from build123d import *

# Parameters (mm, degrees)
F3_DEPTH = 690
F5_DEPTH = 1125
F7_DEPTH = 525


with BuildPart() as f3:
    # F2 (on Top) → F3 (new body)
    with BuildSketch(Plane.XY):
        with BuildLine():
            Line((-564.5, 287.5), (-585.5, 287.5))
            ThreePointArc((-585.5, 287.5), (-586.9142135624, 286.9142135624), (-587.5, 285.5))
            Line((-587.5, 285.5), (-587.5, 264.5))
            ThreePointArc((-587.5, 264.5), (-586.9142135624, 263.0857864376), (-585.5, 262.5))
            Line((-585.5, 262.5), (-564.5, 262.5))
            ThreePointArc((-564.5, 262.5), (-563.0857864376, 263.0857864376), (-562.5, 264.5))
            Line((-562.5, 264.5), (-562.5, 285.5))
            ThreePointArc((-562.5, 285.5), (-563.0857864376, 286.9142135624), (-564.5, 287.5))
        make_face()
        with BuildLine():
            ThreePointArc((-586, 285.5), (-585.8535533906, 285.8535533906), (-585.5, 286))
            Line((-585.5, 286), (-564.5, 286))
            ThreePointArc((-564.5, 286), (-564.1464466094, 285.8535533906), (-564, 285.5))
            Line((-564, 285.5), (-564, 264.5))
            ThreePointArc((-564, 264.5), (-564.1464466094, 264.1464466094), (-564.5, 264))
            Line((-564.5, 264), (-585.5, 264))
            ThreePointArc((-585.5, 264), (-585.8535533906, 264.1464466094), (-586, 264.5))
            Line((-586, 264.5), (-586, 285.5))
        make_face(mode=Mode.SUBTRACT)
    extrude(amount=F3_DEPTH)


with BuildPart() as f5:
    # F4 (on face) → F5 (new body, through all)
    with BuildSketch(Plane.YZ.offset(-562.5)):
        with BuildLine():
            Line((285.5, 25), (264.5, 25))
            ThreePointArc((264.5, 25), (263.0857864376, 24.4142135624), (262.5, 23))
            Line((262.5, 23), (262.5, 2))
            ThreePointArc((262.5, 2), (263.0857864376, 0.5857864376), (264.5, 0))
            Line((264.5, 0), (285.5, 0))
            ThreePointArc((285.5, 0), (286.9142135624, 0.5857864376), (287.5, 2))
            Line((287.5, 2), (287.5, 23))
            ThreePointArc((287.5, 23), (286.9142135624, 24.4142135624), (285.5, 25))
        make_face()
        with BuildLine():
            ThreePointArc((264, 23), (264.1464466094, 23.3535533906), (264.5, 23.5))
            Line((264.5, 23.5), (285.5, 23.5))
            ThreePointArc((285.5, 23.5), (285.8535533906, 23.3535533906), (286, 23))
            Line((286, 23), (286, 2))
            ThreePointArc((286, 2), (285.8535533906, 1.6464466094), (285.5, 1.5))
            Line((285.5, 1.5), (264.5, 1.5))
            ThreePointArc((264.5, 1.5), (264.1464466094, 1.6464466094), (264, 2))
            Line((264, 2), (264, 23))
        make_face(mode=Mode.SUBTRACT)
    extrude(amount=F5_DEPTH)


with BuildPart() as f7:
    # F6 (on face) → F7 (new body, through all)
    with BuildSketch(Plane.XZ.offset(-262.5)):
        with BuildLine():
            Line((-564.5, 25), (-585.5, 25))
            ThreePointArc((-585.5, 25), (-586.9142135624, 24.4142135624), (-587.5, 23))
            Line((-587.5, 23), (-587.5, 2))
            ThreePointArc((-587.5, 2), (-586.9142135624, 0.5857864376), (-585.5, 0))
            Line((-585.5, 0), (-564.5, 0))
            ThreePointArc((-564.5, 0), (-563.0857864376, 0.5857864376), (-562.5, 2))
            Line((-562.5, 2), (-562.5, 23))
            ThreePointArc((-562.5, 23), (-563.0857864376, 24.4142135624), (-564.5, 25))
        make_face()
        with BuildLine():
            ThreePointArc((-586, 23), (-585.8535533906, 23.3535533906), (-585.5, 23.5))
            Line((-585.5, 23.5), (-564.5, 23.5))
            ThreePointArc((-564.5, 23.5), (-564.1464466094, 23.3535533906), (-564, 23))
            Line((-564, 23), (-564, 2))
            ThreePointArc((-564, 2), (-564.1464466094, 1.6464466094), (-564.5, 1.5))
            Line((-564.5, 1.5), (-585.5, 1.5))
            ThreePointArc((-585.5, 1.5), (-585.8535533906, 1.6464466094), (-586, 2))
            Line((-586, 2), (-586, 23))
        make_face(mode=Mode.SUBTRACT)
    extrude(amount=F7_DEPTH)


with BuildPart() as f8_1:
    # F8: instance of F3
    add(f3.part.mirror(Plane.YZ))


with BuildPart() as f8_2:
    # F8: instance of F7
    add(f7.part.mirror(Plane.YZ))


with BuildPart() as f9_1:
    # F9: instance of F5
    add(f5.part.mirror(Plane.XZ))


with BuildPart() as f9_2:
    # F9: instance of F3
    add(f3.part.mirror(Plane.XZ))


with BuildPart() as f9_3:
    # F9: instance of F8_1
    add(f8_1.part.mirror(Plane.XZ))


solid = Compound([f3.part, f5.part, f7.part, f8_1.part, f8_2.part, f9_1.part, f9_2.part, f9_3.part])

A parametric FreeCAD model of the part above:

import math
import FreeCAD as App
import Part
import Sketcher
from FreeCAD import Vector

doc = App.newDocument("Part")
body = doc.addObject("PartDesign::Body", "Body")

sketch1 = body.newObject("Sketcher::SketchObject", "Sketch")
sketch1.AttachmentSupport = (doc.getObject("XY_Plane"), [""])
sketch1.MapMode = "FlatFace"
sketch1.addGeometry(Part.LineSegment(Vector(-564.5, 287.5, 0), Vector(-585.5, 287.5, 0)), False)
sketch1.addGeometry(Part.ArcOfCircle(Part.Circle(Vector(-585.5, 285.5, 0), Vector(0, 0, 1), 2), math.radians(90), math.radians(180)), False)
sketch1.addGeometry(Part.LineSegment(Vector(-587.5, 285.5, 0), Vector(-587.5, 264.5, 0)), False)
sketch1.addGeometry(Part.ArcOfCircle(Part.Circle(Vector(-585.5, 264.5, 0), Vector(0, 0, 1), 2), math.radians(180), math.radians(270)), False)
sketch1.addGeometry(Part.LineSegment(Vector(-585.5, 262.5, 0), Vector(-564.5, 262.5, 0)), False)
sketch1.addGeometry(Part.ArcOfCircle(Part.Circle(Vector(-564.5, 264.5, 0), Vector(0, 0, 1), 2), math.radians(-90), math.radians(0)), False)
sketch1.addGeometry(Part.LineSegment(Vector(-562.5, 264.5, 0), Vector(-562.5, 285.5, 0)), False)
sketch1.addGeometry(Part.ArcOfCircle(Part.Circle(Vector(-564.5, 285.5, 0), Vector(0, 0, 1), 2), math.radians(0), math.radians(90)), False)
sketch1.addGeometry(Part.LineSegment(Vector(-586, 264.5, 0), Vector(-586, 285.5, 0)), False)
sketch1.addGeometry(Part.ArcOfCircle(Part.Circle(Vector(-585.5, 285.5, 0), Vector(0, 0, 1), 0.5), math.radians(90), math.radians(180)), False)
sketch1.addGeometry(Part.LineSegment(Vector(-585.5, 286, 0), Vector(-564.5, 286, 0)), False)
sketch1.addGeometry(Part.ArcOfCircle(Part.Circle(Vector(-564.5, 285.5, 0), Vector(0, 0, 1), 0.5), math.radians(0), math.radians(90)), False)
sketch1.addGeometry(Part.LineSegment(Vector(-564, 285.5, 0), Vector(-564, 264.5, 0)), False)
sketch1.addGeometry(Part.ArcOfCircle(Part.Circle(Vector(-564.5, 264.5, 0), Vector(0, 0, 1), 0.5), math.radians(-90), math.radians(0)), False)
sketch1.addGeometry(Part.LineSegment(Vector(-564.5, 264, 0), Vector(-585.5, 264, 0)), False)
sketch1.addGeometry(Part.ArcOfCircle(Part.Circle(Vector(-585.5, 264.5, 0), Vector(0, 0, 1), 0.5), math.radians(180), math.radians(270)), False)
sketch1.addConstraint(Sketcher.Constraint("Tangent", 0, 2, 1, 1))
sketch1.addConstraint(Sketcher.Constraint("Tangent", 1, 2, 2, 1))
sketch1.addConstraint(Sketcher.Constraint("Tangent", 2, 2, 3, 1))
sketch1.addConstraint(Sketcher.Constraint("Tangent", 3, 2, 4, 1))
sketch1.addConstraint(Sketcher.Constraint("Tangent", 4, 2, 5, 1))
sketch1.addConstraint(Sketcher.Constraint("Tangent", 5, 2, 6, 1))
sketch1.addConstraint(Sketcher.Constraint("Tangent", 6, 2, 7, 1))
sketch1.addConstraint(Sketcher.Constraint("Tangent", 7, 2, 0, 1))
sketch1.addConstraint(Sketcher.Constraint("Tangent", 8, 2, 9, 2))
sketch1.addConstraint(Sketcher.Constraint("Tangent", 9, 1, 10, 1))
sketch1.addConstraint(Sketcher.Constraint("Tangent", 10, 2, 11, 2))
sketch1.addConstraint(Sketcher.Constraint("Tangent", 11, 1, 12, 1))
sketch1.addConstraint(Sketcher.Constraint("Tangent", 12, 2, 13, 2))
sketch1.addConstraint(Sketcher.Constraint("Tangent", 13, 1, 14, 1))
sketch1.addConstraint(Sketcher.Constraint("Tangent", 14, 2, 15, 2))
sketch1.addConstraint(Sketcher.Constraint("Tangent", 15, 1, 8, 1))
sketch1.addConstraint(Sketcher.Constraint("Horizontal", 0))
sketch1.addConstraint(Sketcher.Constraint("Vertical", 2))
sketch1.addConstraint(Sketcher.Constraint("Horizontal", 4))
sketch1.addConstraint(Sketcher.Constraint("Vertical", 6))
sketch1.addConstraint(Sketcher.Constraint("Vertical", 8))
sketch1.addConstraint(Sketcher.Constraint("Horizontal", 10))
sketch1.addConstraint(Sketcher.Constraint("Vertical", 12))
sketch1.addConstraint(Sketcher.Constraint("Horizontal", 14))
sketch1.addConstraint(Sketcher.Constraint("Coincident", 9, 3, 1, 3))
sketch1.addConstraint(Sketcher.Constraint("Coincident", 11, 3, 7, 3))
sketch1.addConstraint(Sketcher.Constraint("Coincident", 13, 3, 5, 3))
sketch1.addConstraint(Sketcher.Constraint("Equal", 1, 3))
sketch1.addConstraint(Sketcher.Constraint("Equal", 3, 5))
sketch1.addConstraint(Sketcher.Constraint("Equal", 5, 7))
sketch1.addConstraint(Sketcher.Constraint("Equal", 13, 15))
sketch1.addConstraint(Sketcher.Constraint("Equal", 14, 2))
sketch1.addConstraint(Sketcher.Constraint("Radius", 1, 2.0))
sketch1.addConstraint(Sketcher.Constraint("Radius", 9, 0.5))
sketch1.addConstraint(Sketcher.Constraint("DistanceX", 0, 2, 0, 1, 21.0))
sketch1.addConstraint(Sketcher.Constraint("DistanceX", 8, 2, -1, 1, 586.0))
sketch1.addConstraint(Sketcher.Constraint("DistanceY", -1, 1, 9, 1, 286.0))
pad1 = body.newObject("PartDesign::Pad", "Pad")
pad1.Profile = sketch1
pad1.Length = 690
body2 = doc.addObject("PartDesign::Body", "Body001")

sketch2 = body2.newObject("Sketcher::SketchObject", "Sketch001")
sketch2.AttachmentSupport = (doc.getObject("YZ_Plane001"), [""])
sketch2.MapMode = "FlatFace"
sketch2.AttachmentOffset = App.Placement(Vector(0, 0, -562.5), App.Rotation())
sketch2.addGeometry(Part.LineSegment(Vector(285.5, 25, 0), Vector(264.5, 25, 0)), False)
sketch2.addGeometry(Part.ArcOfCircle(Part.Circle(Vector(264.5, 23, 0), Vector(0, 0, 1), 2), math.radians(90), math.radians(180)), False)
sketch2.addGeometry(Part.LineSegment(Vector(262.5, 23, 0), Vector(262.5, 2, 0)), False)
sketch2.addGeometry(Part.ArcOfCircle(Part.Circle(Vector(264.5, 2, 0), Vector(0, 0, 1), 2), math.radians(180), math.radians(270)), False)
sketch2.addGeometry(Part.LineSegment(Vector(264.5, 0, 0), Vector(285.5, 0, 0)), False)
sketch2.addGeometry(Part.ArcOfCircle(Part.Circle(Vector(285.5, 2, 0), Vector(0, 0, 1), 2), math.radians(-90), math.radians(0)), False)
sketch2.addGeometry(Part.LineSegment(Vector(287.5, 2, 0), Vector(287.5, 23, 0)), False)
sketch2.addGeometry(Part.ArcOfCircle(Part.Circle(Vector(285.5, 23, 0), Vector(0, 0, 1), 2), math.radians(0), math.radians(90)), False)
sketch2.addGeometry(Part.LineSegment(Vector(264, 2, 0), Vector(264, 23, 0)), False)
sketch2.addGeometry(Part.ArcOfCircle(Part.Circle(Vector(264.5, 23, 0), Vector(0, 0, 1), 0.5), math.radians(90), math.radians(180)), False)
sketch2.addGeometry(Part.LineSegment(Vector(264.5, 23.5, 0), Vector(285.5, 23.5, 0)), False)
sketch2.addGeometry(Part.ArcOfCircle(Part.Circle(Vector(285.5, 23, 0), Vector(0, 0, 1), 0.5), math.radians(0), math.radians(90)), False)
sketch2.addGeometry(Part.LineSegment(Vector(286, 23, 0), Vector(286, 2, 0)), False)
sketch2.addGeometry(Part.ArcOfCircle(Part.Circle(Vector(285.5, 2, 0), Vector(0, 0, 1), 0.5), math.radians(-90), math.radians(0)), False)
sketch2.addGeometry(Part.LineSegment(Vector(285.5, 1.5, 0), Vector(264.5, 1.5, 0)), False)
sketch2.addGeometry(Part.ArcOfCircle(Part.Circle(Vector(264.5, 2, 0), Vector(0, 0, 1), 0.5), math.radians(180), math.radians(270)), False)
sketch2.addConstraint(Sketcher.Constraint("Tangent", 0, 2, 1, 1))
sketch2.addConstraint(Sketcher.Constraint("Tangent", 1, 2, 2, 1))
sketch2.addConstraint(Sketcher.Constraint("Tangent", 2, 2, 3, 1))
sketch2.addConstraint(Sketcher.Constraint("Tangent", 3, 2, 4, 1))
sketch2.addConstraint(Sketcher.Constraint("Tangent", 4, 2, 5, 1))
sketch2.addConstraint(Sketcher.Constraint("Tangent", 5, 2, 6, 1))
sketch2.addConstraint(Sketcher.Constraint("Tangent", 6, 2, 7, 1))
sketch2.addConstraint(Sketcher.Constraint("Tangent", 7, 2, 0, 1))
sketch2.addConstraint(Sketcher.Constraint("Tangent", 8, 2, 9, 2))
sketch2.addConstraint(Sketcher.Constraint("Tangent", 9, 1, 10, 1))
sketch2.addConstraint(Sketcher.Constraint("Tangent", 10, 2, 11, 2))
sketch2.addConstraint(Sketcher.Constraint("Tangent", 11, 1, 12, 1))
sketch2.addConstraint(Sketcher.Constraint("Tangent", 12, 2, 13, 2))
sketch2.addConstraint(Sketcher.Constraint("Tangent", 13, 1, 14, 1))
sketch2.addConstraint(Sketcher.Constraint("Tangent", 14, 2, 15, 2))
sketch2.addConstraint(Sketcher.Constraint("Tangent", 15, 1, 8, 1))
sketch2.addConstraint(Sketcher.Constraint("Horizontal", 0))
sketch2.addConstraint(Sketcher.Constraint("Vertical", 2))
sketch2.addConstraint(Sketcher.Constraint("Horizontal", 4))
sketch2.addConstraint(Sketcher.Constraint("Vertical", 6))
sketch2.addConstraint(Sketcher.Constraint("Vertical", 8))
sketch2.addConstraint(Sketcher.Constraint("Horizontal", 10))
sketch2.addConstraint(Sketcher.Constraint("Vertical", 12))
sketch2.addConstraint(Sketcher.Constraint("Horizontal", 14))
sketch2.addConstraint(Sketcher.Constraint("Coincident", 9, 3, 1, 3))
sketch2.addConstraint(Sketcher.Constraint("Coincident", 11, 3, 7, 3))
sketch2.addConstraint(Sketcher.Constraint("Coincident", 13, 3, 5, 3))
sketch2.addConstraint(Sketcher.Constraint("Equal", 1, 3))
sketch2.addConstraint(Sketcher.Constraint("Equal", 3, 5))
sketch2.addConstraint(Sketcher.Constraint("Equal", 5, 7))
sketch2.addConstraint(Sketcher.Constraint("Equal", 13, 15))
sketch2.addConstraint(Sketcher.Constraint("PointOnObject", 3, 2, -1))
sketch2.addConstraint(Sketcher.Constraint("Equal", 14, 2))
sketch2.addConstraint(Sketcher.Constraint("Radius", 1, 2.0))
sketch2.addConstraint(Sketcher.Constraint("Radius", 9, 0.5))
sketch2.addConstraint(Sketcher.Constraint("DistanceX", 0, 2, 0, 1, 21.0))
sketch2.addConstraint(Sketcher.Constraint("DistanceX", -1, 1, 8, 2, 264.0))
pad2 = body2.newObject("PartDesign::Pad", "Pad001")
pad2.Profile = sketch2
pad2.Length = 1125
body3 = doc.addObject("PartDesign::Body", "Body002")

sketch3 = body3.newObject("Sketcher::SketchObject", "Sketch002")
sketch3.AttachmentSupport = (doc.getObject("XZ_Plane002"), [""])
sketch3.MapMode = "FlatFace"
sketch3.AttachmentOffset = App.Placement(Vector(0, 0, -262.5), App.Rotation())
sketch3.addGeometry(Part.LineSegment(Vector(-564.5, 25, 0), Vector(-585.5, 25, 0)), False)
sketch3.addGeometry(Part.ArcOfCircle(Part.Circle(Vector(-585.5, 23, 0), Vector(0, 0, 1), 2), math.radians(90), math.radians(180)), False)
sketch3.addGeometry(Part.LineSegment(Vector(-587.5, 23, 0), Vector(-587.5, 2, 0)), False)
sketch3.addGeometry(Part.ArcOfCircle(Part.Circle(Vector(-585.5, 2, 0), Vector(0, 0, 1), 2), math.radians(180), math.radians(270)), False)
sketch3.addGeometry(Part.LineSegment(Vector(-585.5, 0, 0), Vector(-564.5, 0, 0)), False)
sketch3.addGeometry(Part.ArcOfCircle(Part.Circle(Vector(-564.5, 2, 0), Vector(0, 0, 1), 2), math.radians(-90), math.radians(0)), False)
sketch3.addGeometry(Part.LineSegment(Vector(-562.5, 2, 0), Vector(-562.5, 23, 0)), False)
sketch3.addGeometry(Part.ArcOfCircle(Part.Circle(Vector(-564.5, 23, 0), Vector(0, 0, 1), 2), math.radians(0), math.radians(90)), False)
sketch3.addGeometry(Part.LineSegment(Vector(-586, 2, 0), Vector(-586, 23, 0)), False)
sketch3.addGeometry(Part.ArcOfCircle(Part.Circle(Vector(-585.5, 23, 0), Vector(0, 0, 1), 0.5), math.radians(90), math.radians(180)), False)
sketch3.addGeometry(Part.LineSegment(Vector(-585.5, 23.5, 0), Vector(-564.5, 23.5, 0)), False)
sketch3.addGeometry(Part.ArcOfCircle(Part.Circle(Vector(-564.5, 23, 0), Vector(0, 0, 1), 0.5), math.radians(0), math.radians(90)), False)
sketch3.addGeometry(Part.LineSegment(Vector(-564, 23, 0), Vector(-564, 2, 0)), False)
sketch3.addGeometry(Part.ArcOfCircle(Part.Circle(Vector(-564.5, 2, 0), Vector(0, 0, 1), 0.5), math.radians(-90), math.radians(0)), False)
sketch3.addGeometry(Part.LineSegment(Vector(-564.5, 1.5, 0), Vector(-585.5, 1.5, 0)), False)
sketch3.addGeometry(Part.ArcOfCircle(Part.Circle(Vector(-585.5, 2, 0), Vector(0, 0, 1), 0.5), math.radians(180), math.radians(270)), False)
sketch3.addConstraint(Sketcher.Constraint("Tangent", 0, 2, 1, 1))
sketch3.addConstraint(Sketcher.Constraint("Tangent", 1, 2, 2, 1))
sketch3.addConstraint(Sketcher.Constraint("Tangent", 2, 2, 3, 1))
sketch3.addConstraint(Sketcher.Constraint("Tangent", 3, 2, 4, 1))
sketch3.addConstraint(Sketcher.Constraint("Tangent", 4, 2, 5, 1))
sketch3.addConstraint(Sketcher.Constraint("Tangent", 5, 2, 6, 1))
sketch3.addConstraint(Sketcher.Constraint("Tangent", 6, 2, 7, 1))
sketch3.addConstraint(Sketcher.Constraint("Tangent", 7, 2, 0, 1))
sketch3.addConstraint(Sketcher.Constraint("Tangent", 8, 2, 9, 2))
sketch3.addConstraint(Sketcher.Constraint("Tangent", 9, 1, 10, 1))
sketch3.addConstraint(Sketcher.Constraint("Tangent", 10, 2, 11, 2))
sketch3.addConstraint(Sketcher.Constraint("Tangent", 11, 1, 12, 1))
sketch3.addConstraint(Sketcher.Constraint("Tangent", 12, 2, 13, 2))
sketch3.addConstraint(Sketcher.Constraint("Tangent", 13, 1, 14, 1))
sketch3.addConstraint(Sketcher.Constraint("Tangent", 14, 2, 15, 2))
sketch3.addConstraint(Sketcher.Constraint("Tangent", 15, 1, 8, 1))
sketch3.addConstraint(Sketcher.Constraint("Horizontal", 0))
sketch3.addConstraint(Sketcher.Constraint("Vertical", 2))
sketch3.addConstraint(Sketcher.Constraint("Horizontal", 4))
sketch3.addConstraint(Sketcher.Constraint("Vertical", 6))
sketch3.addConstraint(Sketcher.Constraint("Vertical", 8))
sketch3.addConstraint(Sketcher.Constraint("Horizontal", 10))
sketch3.addConstraint(Sketcher.Constraint("Vertical", 12))
sketch3.addConstraint(Sketcher.Constraint("Horizontal", 14))
sketch3.addConstraint(Sketcher.Constraint("Coincident", 9, 3, 1, 3))
sketch3.addConstraint(Sketcher.Constraint("Coincident", 11, 3, 7, 3))
sketch3.addConstraint(Sketcher.Constraint("Coincident", 13, 3, 5, 3))
sketch3.addConstraint(Sketcher.Constraint("Equal", 1, 3))
sketch3.addConstraint(Sketcher.Constraint("Equal", 3, 5))
sketch3.addConstraint(Sketcher.Constraint("Equal", 5, 7))
sketch3.addConstraint(Sketcher.Constraint("Equal", 13, 15))
sketch3.addConstraint(Sketcher.Constraint("PointOnObject", 3, 2, -1))
sketch3.addConstraint(Sketcher.Constraint("Equal", 14, 2))
sketch3.addConstraint(Sketcher.Constraint("Radius", 1, 2.0))
sketch3.addConstraint(Sketcher.Constraint("Radius", 9, 0.5))
sketch3.addConstraint(Sketcher.Constraint("DistanceX", 0, 2, 0, 1, 21.0))
sketch3.addConstraint(Sketcher.Constraint("DistanceX", 8, 2, -1, 1, 586.0))
pad3 = body3.newObject("PartDesign::Pad", "Pad002")
pad3.Profile = sketch3
pad3.Length = 525
body4 = doc.addObject("PartDesign::Body", "Body003")
doc.recompute()

mirroring = doc.addObject("Part::Mirroring", "Mirroring")
mirroring.Source = body
mirroring.Base = Vector(0, 0, 0)
mirroring.Normal = Vector(1, 0, 0)
body4.BaseFeature = mirroring
doc.recompute()
body5 = doc.addObject("PartDesign::Body", "Body004")
doc.recompute()

mirroring2 = doc.addObject("Part::Mirroring", "Mirroring001")
mirroring2.Source = body3
mirroring2.Base = Vector(0, 0, 0)
mirroring2.Normal = Vector(1, 0, 0)
body5.BaseFeature = mirroring2
doc.recompute()
body6 = doc.addObject("PartDesign::Body", "Body005")
doc.recompute()

mirroring3 = doc.addObject("Part::Mirroring", "Mirroring002")
mirroring3.Source = body2
mirroring3.Base = Vector(0, 0, 0)
mirroring3.Normal = Vector(0, -1, 0)
body6.BaseFeature = mirroring3
doc.recompute()
body7 = doc.addObject("PartDesign::Body", "Body006")
doc.recompute()

mirroring4 = doc.addObject("Part::Mirroring", "Mirroring003")
mirroring4.Source = body
mirroring4.Base = Vector(0, 0, 0)
mirroring4.Normal = Vector(0, -1, 0)
body7.BaseFeature = mirroring4
doc.recompute()
body8 = doc.addObject("PartDesign::Body", "Body007")
doc.recompute()

mirroring5 = doc.addObject("Part::Mirroring", "Mirroring004")
mirroring5.Source = body4
mirroring5.Base = Vector(0, 0, 0)
mirroring5.Normal = Vector(0, -1, 0)
body8.BaseFeature = mirroring5
doc.recompute()
mirroring.Visibility = False
mirroring2.Visibility = False
mirroring3.Visibility = False
mirroring4.Visibility = False
mirroring5.Visibility = False

doc.recompute()
